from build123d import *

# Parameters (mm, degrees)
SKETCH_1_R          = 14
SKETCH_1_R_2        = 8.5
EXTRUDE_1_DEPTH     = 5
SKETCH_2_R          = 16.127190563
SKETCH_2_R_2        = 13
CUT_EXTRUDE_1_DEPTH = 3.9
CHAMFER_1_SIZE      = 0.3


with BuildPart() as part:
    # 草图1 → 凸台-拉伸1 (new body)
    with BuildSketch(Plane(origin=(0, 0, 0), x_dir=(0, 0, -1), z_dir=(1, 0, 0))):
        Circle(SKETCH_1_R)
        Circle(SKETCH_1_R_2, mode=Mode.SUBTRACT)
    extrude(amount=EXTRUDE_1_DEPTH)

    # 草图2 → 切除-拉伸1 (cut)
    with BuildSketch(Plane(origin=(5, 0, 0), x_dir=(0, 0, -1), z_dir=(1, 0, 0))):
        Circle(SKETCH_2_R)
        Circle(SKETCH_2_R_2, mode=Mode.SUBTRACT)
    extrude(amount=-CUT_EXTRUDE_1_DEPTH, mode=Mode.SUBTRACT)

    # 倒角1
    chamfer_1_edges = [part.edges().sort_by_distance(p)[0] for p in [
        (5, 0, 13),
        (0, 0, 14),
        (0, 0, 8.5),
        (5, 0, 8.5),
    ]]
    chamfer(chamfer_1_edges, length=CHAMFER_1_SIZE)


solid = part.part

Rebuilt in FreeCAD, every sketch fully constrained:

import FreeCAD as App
import Part
import Sketcher
from FreeCAD import Vector
Q = App.Units.Quantity


def edges_at(feature, points):
    """Names of the edges that pass closest to the given points."""
    edges = feature.Shape.Edges
    near = lambda p: min(range(len(edges)), key=lambda i: edges[i].distToShape(Part.Vertex(*p))[0])
    return sorted({f"Edge{near(p) + 1}" for p in points})

doc = App.newDocument("Part")
body = doc.addObject("PartDesign::Body", "Body")

# Sketch on YZ plane
sketch1 = body.newObject("Sketcher::SketchObject", "Sketch")
sketch1.AttachmentSupport = (doc.getObject("YZ_Plane"), [""])
sketch1.MapMode = "FlatFace"
sketch1.addGeometry([
    Part.Circle(Vector(0, 0, 0), Vector(0, 0, 1), 14),
    Part.Circle(Vector(0, 0, 0), Vector(0, 0, 1), 8),
], False)
sketch1.addConstraint([
    Sketcher.Constraint("Coincident", 0, 3, -1, 1),
    Sketcher.Constraint("Coincident", 1, 3, -1, 1),
    Sketcher.Constraint("Diameter", 0, Q("28 mm")),
    Sketcher.Constraint("Diameter", 1, Q("17 mm")),
])
pad1 = body.newObject("PartDesign::Pad", "Pad")
pad1.Profile = sketch1
pad1.Length = 5

# Sketch on YZ plane
sketch2 = body.newObject("Sketcher::SketchObject", "Sketch001")
sketch2.AttachmentSupport = (doc.getObject("YZ_Plane"), [""])
sketch2.MapMode = "FlatFace"
sketch2.AttachmentOffset = App.Placement(Vector(0, 0, 5), App.Rotation())
sketch2.addGeometry([
    Part.Circle(Vector(0, 0, 0), Vector(0, 0, 1), 16),
    Part.Circle(Vector(0, 0, 0), Vector(0, 0, 1), 13),
], False)
sketch2.addConstraint([
    Sketcher.Constraint("Coincident", 0, 3, -1, 1),
    Sketcher.Constraint("Coincident", 1, 3, -1, 1),
    Sketcher.Constraint("Diameter", 1, Q("26 mm")),
    Sketcher.Constraint("Diameter", 0, Q("32.254381 mm")),
])
pocket1 = body.newObject("PartDesign::Pocket", "Pocket")
pocket1.Profile = sketch2
pocket1.Length = 3.9
doc.recompute()

chamfer = body.newObject("PartDesign::Chamfer", "Chamfer")
chamfer.Base = (pocket1, edges_at(pocket1, [
    (5, 0, 13),
    (0, 0, 14),
    (0, 0, 8.5),
    (5, 0, 8.5),
]))
chamfer.Size = 0.3

doc.recompute()
